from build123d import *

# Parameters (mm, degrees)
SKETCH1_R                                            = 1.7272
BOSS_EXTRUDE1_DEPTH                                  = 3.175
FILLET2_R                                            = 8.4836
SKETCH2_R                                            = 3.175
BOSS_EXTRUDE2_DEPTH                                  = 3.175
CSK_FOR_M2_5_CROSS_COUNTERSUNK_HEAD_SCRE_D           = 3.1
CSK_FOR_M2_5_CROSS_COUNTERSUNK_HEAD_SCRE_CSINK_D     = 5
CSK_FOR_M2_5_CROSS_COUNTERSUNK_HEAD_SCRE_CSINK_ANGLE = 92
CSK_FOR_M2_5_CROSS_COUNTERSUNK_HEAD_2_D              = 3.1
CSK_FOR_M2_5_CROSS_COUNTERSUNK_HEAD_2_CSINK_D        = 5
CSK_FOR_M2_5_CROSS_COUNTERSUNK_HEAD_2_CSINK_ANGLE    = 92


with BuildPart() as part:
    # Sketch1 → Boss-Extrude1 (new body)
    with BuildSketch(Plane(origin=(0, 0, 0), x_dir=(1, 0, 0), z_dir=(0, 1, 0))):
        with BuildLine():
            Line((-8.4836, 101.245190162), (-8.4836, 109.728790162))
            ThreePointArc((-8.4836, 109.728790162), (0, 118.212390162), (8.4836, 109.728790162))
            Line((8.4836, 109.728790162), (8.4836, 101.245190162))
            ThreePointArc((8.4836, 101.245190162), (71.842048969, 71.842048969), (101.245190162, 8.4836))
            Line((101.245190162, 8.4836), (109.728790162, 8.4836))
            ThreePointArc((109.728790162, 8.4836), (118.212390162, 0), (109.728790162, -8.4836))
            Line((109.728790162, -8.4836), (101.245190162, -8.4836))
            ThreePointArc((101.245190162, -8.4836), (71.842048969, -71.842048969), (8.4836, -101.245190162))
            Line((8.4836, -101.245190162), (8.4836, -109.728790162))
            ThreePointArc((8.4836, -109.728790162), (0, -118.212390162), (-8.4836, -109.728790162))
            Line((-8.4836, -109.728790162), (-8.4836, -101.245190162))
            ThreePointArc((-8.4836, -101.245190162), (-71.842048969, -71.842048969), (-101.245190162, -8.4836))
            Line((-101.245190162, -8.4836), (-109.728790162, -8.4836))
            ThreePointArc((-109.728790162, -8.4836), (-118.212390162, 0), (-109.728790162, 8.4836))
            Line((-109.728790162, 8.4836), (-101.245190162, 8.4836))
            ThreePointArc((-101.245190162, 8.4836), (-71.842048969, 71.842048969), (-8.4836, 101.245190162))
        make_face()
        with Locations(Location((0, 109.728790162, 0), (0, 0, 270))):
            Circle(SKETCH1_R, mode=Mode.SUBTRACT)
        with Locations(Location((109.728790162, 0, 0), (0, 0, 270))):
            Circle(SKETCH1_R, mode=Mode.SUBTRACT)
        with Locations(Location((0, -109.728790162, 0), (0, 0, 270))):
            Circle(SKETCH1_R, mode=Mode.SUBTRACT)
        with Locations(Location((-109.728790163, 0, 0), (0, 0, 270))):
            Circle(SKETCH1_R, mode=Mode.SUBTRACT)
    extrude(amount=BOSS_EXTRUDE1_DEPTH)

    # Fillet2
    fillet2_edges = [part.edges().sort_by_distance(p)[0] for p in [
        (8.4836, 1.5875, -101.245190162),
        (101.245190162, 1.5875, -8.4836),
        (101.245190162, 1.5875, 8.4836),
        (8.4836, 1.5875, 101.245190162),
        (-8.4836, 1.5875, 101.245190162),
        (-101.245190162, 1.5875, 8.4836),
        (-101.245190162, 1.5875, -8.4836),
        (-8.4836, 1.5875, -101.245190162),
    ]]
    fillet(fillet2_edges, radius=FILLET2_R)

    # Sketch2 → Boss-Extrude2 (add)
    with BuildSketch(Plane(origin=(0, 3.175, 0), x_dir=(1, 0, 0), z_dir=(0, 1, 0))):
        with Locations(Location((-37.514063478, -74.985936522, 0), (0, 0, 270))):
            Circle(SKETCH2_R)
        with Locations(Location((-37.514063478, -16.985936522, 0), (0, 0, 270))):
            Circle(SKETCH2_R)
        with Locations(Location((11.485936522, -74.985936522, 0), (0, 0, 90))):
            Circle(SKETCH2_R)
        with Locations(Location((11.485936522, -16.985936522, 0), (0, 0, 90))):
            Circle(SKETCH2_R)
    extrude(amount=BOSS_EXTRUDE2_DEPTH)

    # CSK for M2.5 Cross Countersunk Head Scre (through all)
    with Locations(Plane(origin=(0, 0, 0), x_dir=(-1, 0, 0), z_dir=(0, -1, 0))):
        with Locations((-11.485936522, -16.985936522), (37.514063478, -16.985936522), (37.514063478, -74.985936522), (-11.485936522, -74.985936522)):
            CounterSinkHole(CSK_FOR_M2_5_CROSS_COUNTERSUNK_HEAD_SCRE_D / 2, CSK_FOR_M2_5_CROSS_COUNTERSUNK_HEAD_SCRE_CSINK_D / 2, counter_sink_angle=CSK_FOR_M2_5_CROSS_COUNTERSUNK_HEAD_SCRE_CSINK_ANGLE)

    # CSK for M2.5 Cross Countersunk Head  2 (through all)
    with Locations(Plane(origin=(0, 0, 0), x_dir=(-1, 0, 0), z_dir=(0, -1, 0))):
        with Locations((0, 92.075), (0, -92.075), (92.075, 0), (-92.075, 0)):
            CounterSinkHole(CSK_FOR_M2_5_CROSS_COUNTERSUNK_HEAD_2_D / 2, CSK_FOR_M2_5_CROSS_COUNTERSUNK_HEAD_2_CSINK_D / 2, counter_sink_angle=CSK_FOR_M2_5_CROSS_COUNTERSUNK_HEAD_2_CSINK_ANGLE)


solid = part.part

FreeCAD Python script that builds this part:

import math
import FreeCAD as App
import Part
import Sketcher
from FreeCAD import Vector
Q = App.Units.Quantity


def edges_at(feature, points):
    """Names of the edges that pass closest to the given points."""
    edges = feature.Shape.Edges
    near = lambda p: min(range(len(edges)), key=lambda i: edges[i].distToShape(Part.Vertex(*p))[0])
    return sorted({f"Edge{near(p) + 1}" for p in points})

doc = App.newDocument("Part")
params = doc.addObject("Spreadsheet::Sheet", "Params")
for row, (alias, value) in enumerate([
    ("sketch1_radius", "4 in"),
    ("sketch1_diameter", "0.136 in"),
    ("sketch1_radius2", "0.334 in"),
    ("sketch1_width", "0.334 in"),
    ("pad1_length", "0.125 in"),
    ("fillet_radius", "0.334 in"),
    ("sketch2_diameter", "0.25 in"),
    ("pad2_length", "0.125 in"),
    ("hole_diameter", "3.1 mm"),
    ("hole_csink_diameter", "5 mm"),
    ("hole2_diameter", "3.1 mm"),
    ("hole2_csink_diameter", "5 mm"),
], start=1):
    params.set(f"A{row}", alias)
    params.set(f"B{row}", "=" + value)
    params.setAlias(f"B{row}", alias)

body = doc.addObject("PartDesign::Body", "Body")

# Sketch on XZ plane
sketch1 = doc.addObject("Sketcher::SketchObject", "Sketch")
body.addObject(sketch1)
sketch1.AttachmentSupport = (doc.XZ_Plane, [""])
sketch1.MapMode = "FlatFace"
sketch1.addGeometry(Part.LineSegment(Vector(-8.5, -109.7, 0), Vector(-8.5, -101.2, 0)), False)
sketch1.addGeometry(Part.ArcOfCircle(Part.Circle(Vector(0, 0, 0), Vector(0, 0, 1), 101.6), math.radians(-175), math.radians(-95)), False)
sketch1.addGeometry(Part.LineSegment(Vector(-101.2, -8.5, 0), Vector(-109.7, -8.5, 0)), False)
sketch1.addGeometry(Part.ArcOfCircle(Part.Circle(Vector(-109.7, 0, 0), Vector(0, 0, 1), 8.5), math.radians(90), math.radians(270)), False)
sketch1.addGeometry(Part.LineSegment(Vector(-109.7, 8.5, 0), Vector(-101.2, 8.5, 0)), False)
sketch1.addGeometry(Part.ArcOfCircle(Part.Circle(Vector(0, 0, 0), Vector(0, 0, 1), 101.6), math.radians(95), math.radians(175)), False)
sketch1.addGeometry(Part.LineSegment(Vector(-8.5, 101.2, 0), Vector(-8.5, 109.7, 0)), False)
sketch1.addGeometry(Part.ArcOfCircle(Part.Circle(Vector(0, 109.7, 0), Vector(0, 0, 1), 8.5), math.radians(0), math.radians(180)), False)
sketch1.addGeometry(Part.LineSegment(Vector(8.5, 109.7, 0), Vector(8.5, 101.2, 0)), False)
sketch1.addGeometry(Part.ArcOfCircle(Part.Circle(Vector(0, 0, 0), Vector(0, 0, 1), 101.6), math.radians(5), math.radians(85)), False)
sketch1.addGeometry(Part.LineSegment(Vector(101.2, 8.5, 0), Vector(109.7, 8.5, 0)), False)
sketch1.addGeometry(Part.ArcOfCircle(Part.Circle(Vector(109.7, 0, 0), Vector(0, 0, 1), 8.5), math.radians(-90), math.radians(90)), False)
sketch1.addGeometry(Part.LineSegment(Vector(109.7, -8.5, 0), Vector(101.2, -8.5, 0)), False)
sketch1.addGeometry(Part.ArcOfCircle(Part.Circle(Vector(0, 0, 0), Vector(0, 0, 1), 101.6), math.radians(-85), math.radians(-5)), False)
sketch1.addGeometry(Part.LineSegment(Vector(8.5, -101.2, 0), Vector(8.5, -109.7, 0)), False)
sketch1.addGeometry(Part.ArcOfCircle(Part.Circle(Vector(0, -109.7, 0), Vector(0, 0, 1), 8.5), math.radians(180), math.radians(360)), False)
sketch1.addGeometry(Part.Circle(Vector(0, 109.7, 0), Vector(0, 0, 1), 1.7), False)
sketch1.addGeometry(Part.Circle(Vector(109.7, 0, 0), Vector(0, 0, 1), 1.7), False)
sketch1.addGeometry(Part.Circle(Vector(0, -109.7, 0), Vector(0, 0, 1), 1.7), False)
sketch1.addGeometry(Part.Circle(Vector(-109.7, 0, 0), Vector(0, 0, 1), 1.7), False)
sketch1.addConstraint(Sketcher.Constraint("Coincident", 0, 2, 1, 2))
sketch1.addConstraint(Sketcher.Constraint("Coincident", 1, 1, 2, 1))
sketch1.addConstraint(Sketcher.Constraint("Tangent", 2, 2, 3, 2))
sketch1.addConstraint(Sketcher.Constraint("Tangent", 3, 1, 4, 1))
sketch1.addConstraint(Sketcher.Constraint("Coincident", 4, 2, 5, 2))
sketch1.addConstraint(Sketcher.Constraint("Coincident", 5, 1, 6, 1))
sketch1.addConstraint(Sketcher.Constraint("Tangent", 6, 2, 7, 2))
sketch1.addConstraint(Sketcher.Constraint("Tangent", 7, 1, 8, 1))
sketch1.addConstraint(Sketcher.Constraint("Coincident", 8, 2, 9, 2))
sketch1.addConstraint(Sketcher.Constraint("Coincident", 9, 1, 10, 1))
sketch1.addConstraint(Sketcher.Constraint("Tangent", 10, 2, 11, 2))
sketch1.addConstraint(Sketcher.Constraint("Tangent", 11, 1, 12, 1))
sketch1.addConstraint(Sketcher.Constraint("Coincident", 12, 2, 13, 2))
sketch1.addConstraint(Sketcher.Constraint("Coincident", 13, 1, 14, 1))
sketch1.addConstraint(Sketcher.Constraint("Tangent", 14, 2, 15, 2))
sketch1.addConstraint(Sketcher.Constraint("Tangent", 15, 1, 0, 1))
sketch1.addConstraint(Sketcher.Constraint("Vertical", 0))
sketch1.addConstraint(Sketcher.Constraint("Horizontal", 2))
sketch1.addConstraint(Sketcher.Constraint("Horizontal", 4))
sketch1.addConstraint(Sketcher.Constraint("Vertical", 6))
sketch1.addConstraint(Sketcher.Constraint("Vertical", 8))
sketch1.addConstraint(Sketcher.Constraint("Horizontal", 10))
sketch1.addConstraint(Sketcher.Constraint("Horizontal", 12))
sketch1.addConstraint(Sketcher.Constraint("Vertical", 14))
sketch1.addConstraint(Sketcher.Constraint("Coincident", 1, 3, -1, 1))
sketch1.addConstraint(Sketcher.Constraint("Coincident", 5, 3, -1, 1))
sketch1.addConstraint(Sketcher.Constraint("Coincident", 9, 3, -1, 1))
sketch1.addConstraint(Sketcher.Constraint("Coincident", 13, 3, -1, 1))
sketch1.addConstraint(Sketcher.Constraint("Coincident", 16, 3, 7, 3))
sketch1.addConstraint(Sketcher.Constraint("Coincident", 17, 3, 11, 3))
sketch1.addConstraint(Sketcher.Constraint("Coincident", 18, 3, 15, 3))
sketch1.addConstraint(Sketcher.Constraint("Coincident", 19, 3, 3, 3))
sketch1.addConstraint(Sketcher.Constraint("Equal", 1, 5))
sketch1.addConstraint(Sketcher.Constraint("Equal", 3, 7))
sketch1.addConstraint(Sketcher.Constraint("Equal", 5, 9))
sketch1.addConstraint(Sketcher.Constraint("Equal", 7, 11))
sketch1.addConstraint(Sketcher.Constraint("Equal", 9, 13))
sketch1.addConstraint(Sketcher.Constraint("Equal", 11, 15))
sketch1.addConstraint(Sketcher.Constraint("Equal", 16, 17))
sketch1.addConstraint(Sketcher.Constraint("Equal", 17, 18))
sketch1.addConstraint(Sketcher.Constraint("Equal", 18, 19))
sketch1.addConstraint(Sketcher.Constraint("Symmetric", 3, 3, 11, 3, -1, 1))
sketch1.addConstraint(Sketcher.Constraint("Symmetric", 7, 3, 15, 3, -1, 1))
sketch1.addConstraint(Sketcher.Constraint("PointOnObject", 3, 3, -1))
sketch1.addConstraint(Sketcher.Constraint("PointOnObject", 7, 3, -2))
sketch1.addConstraint(Sketcher.Constraint("Equal", 12, 0))
sketch1.addConstraint(Sketcher.Constraint("Radius", 1, Q("4 in")))
sketch1.addConstraint(Sketcher.Constraint("Diameter", 16, Q("0.136 in")))
sketch1.addConstraint(Sketcher.Constraint("Radius", 3, Q("0.334 in")))
sketch1.addConstraint(Sketcher.Constraint("DistanceX", 2, 2, 2, 1, Q("0.334 in")))
sketch1.setExpression("Constraints[46]", "Params.sketch1_radius")
sketch1.setExpression("Constraints[47]", "Params.sketch1_diameter")
sketch1.setExpression("Constraints[48]", "Params.sketch1_radius2")
sketch1.setExpression("Constraints[49]", "Params.sketch1_width")
pad1 = doc.addObject("PartDesign::Pad", "Pad")
body.addObject(pad1)
pad1.Profile = sketch1
pad1.setExpression("Length", "Params.pad1_length")
pad1.Reversed = True
doc.recompute()

fillet = doc.addObject("PartDesign::Fillet", "Fillet")
body.addObject(fillet)
fillet.Base = (pad1, edges_at(pad1, [
    (8.484, 1.587, -101.245),
    (101.245, 1.587, -8.484),
    (101.245, 1.587, 8.484),
    (8.484, 1.587, 101.245),
    (-8.484, 1.587, 101.245),
    (-101.245, 1.587, 8.484),
    (-101.245, 1.587, -8.484),
    (-8.484, 1.587, -101.245),
]))
fillet.setExpression("Radius", "Params.fillet_radius")

# Sketch on XZ plane
sketch2 = doc.addObject("Sketcher::SketchObject", "Sketch001")
body.addObject(sketch2)
sketch2.AttachmentSupport = (doc.XZ_Plane, [""])
sketch2.MapMode = "FlatFace"
sketch2.AttachmentOffset = App.Placement(Vector(0, 0, -0.125 * 25.4), App.Rotation())
sketch2.addGeometry(Part.Circle(Vector(-37.5, 75, 0), Vector(0, 0, 1), 3.2), False)
sketch2.addGeometry(Part.Circle(Vector(-37.5, 17, 0), Vector(0, 0, 1), 3.2), False)
sketch2.addGeometry(Part.Circle(Vector(11.5, 75, 0), Vector(0, 0, 1), 3.2), False)
sketch2.addGeometry(Part.Circle(Vector(11.5, 17, 0), Vector(0, 0, 1), 3.2), False)
sketch2.addConstraint(Sketcher.Constraint("Equal", 0, 1))
sketch2.addConstraint(Sketcher.Constraint("Equal", 1, 2))
sketch2.addConstraint(Sketcher.Constraint("Equal", 2, 3))
sketch2.addConstraint(Sketcher.Constraint("Horizontal", 0, 3, 2, 3))
sketch2.addConstraint(Sketcher.Constraint("Horizontal", 1, 3, 3, 3))
sketch2.addConstraint(Sketcher.Constraint("Vertical", 0, 3, 1, 3))
sketch2.addConstraint(Sketcher.Constraint("Vertical", 2, 3, 3, 3))
sketch2.addConstraint(Sketcher.Constraint("Diameter", 0, Q("0.25 in")))
sketch2.addConstraint(Sketcher.Constraint("DistanceY", 1, 3, 0, 3, 58.0))
sketch2.addConstraint(Sketcher.Constraint("DistanceX", 0, 3, 2, 3, 49.0))
sketch2.addConstraint(Sketcher.Constraint("DistanceX", 0, 3, -1, 1, 37.514063))
sketch2.addConstraint(Sketcher.Constraint("DistanceY", -1, 1, 0, 3, 74.985937))
sketch2.setExpression("Constraints[7]", "Params.sketch2_diameter")
pad2 = doc.addObject("PartDesign::Pad", "Pad001")
body.addObject(pad2)
pad2.Profile = sketch2
pad2.setExpression("Length", "Params.pad2_length")
pad2.Reversed = True

# Sketch on XZ plane
sketch3 = doc.addObject("Sketcher::SketchObject", "Sketch002")
body.addObject(sketch3)
sketch3.AttachmentSupport = (doc.XZ_Plane, [""])
sketch3.MapMode = "FlatFace"
sketch3.addGeometry(Part.Circle(Vector(11.5, 17, 0), Vector(0, 0, 1), 1.6), False)
sketch3.addGeometry(Part.Circle(Vector(-37.5, 17, 0), Vector(0, 0, 1), 1.6), False)
sketch3.addGeometry(Part.Circle(Vector(-37.5, 75, 0), Vector(0, 0, 1), 1.6), False)
sketch3.addGeometry(Part.Circle(Vector(11.5, 75, 0), Vector(0, 0, 1), 1.6), False)
sketch3.addConstraint(Sketcher.Constraint("Equal", 0, 1))
sketch3.addConstraint(Sketcher.Constraint("Equal", 1, 2))
sketch3.addConstraint(Sketcher.Constraint("Equal", 2, 3))
sketch3.addConstraint(Sketcher.Constraint("Horizontal", 0, 3, 1, 3))
sketch3.addConstraint(Sketcher.Constraint("Horizontal", 2, 3, 3, 3))
sketch3.addConstraint(Sketcher.Constraint("Vertical", 1, 3, 2, 3))
sketch3.addConstraint(Sketcher.Constraint("Vertical", 0, 3, 3, 3))
sketch3.addConstraint(Sketcher.Constraint("Diameter", 0, 3.1))
sketch3.addConstraint(Sketcher.Constraint("DistanceX", 1, 3, 0, 3, 49.0))
sketch3.addConstraint(Sketcher.Constraint("DistanceY", 1, 3, 2, 3, 58.0))
sketch3.addConstraint(Sketcher.Constraint("DistanceX", -1, 1, 0, 3, 11.485937))
sketch3.addConstraint(Sketcher.Constraint("DistanceY", -1, 1, 0, 3, 16.985937))
doc.recompute()
hole = doc.addObject("PartDesign::Hole", "Hole")
body.addObject(hole)
hole.Profile = sketch3
hole.ThreadType = "None"
hole.setExpression("Diameter", "Params.hole_diameter")
hole.DepthType = "ThroughAll"
hole.HoleCutType = "Countersink"
hole.setExpression("HoleCutDiameter", "Params.hole_csink_diameter")
hole.HoleCutCountersinkAngle = 92

# Sketch on XZ plane
sketch4 = doc.addObject("Sketcher::SketchObject", "Sketch003")
body.addObject(sketch4)
sketch4.AttachmentSupport = (doc.XZ_Plane, [""])
sketch4.MapMode = "FlatFace"
sketch4.addGeometry(Part.Circle(Vector(0, -92.1, 0), Vector(0, 0, 1), 1.6), False)
sketch4.addGeometry(Part.Circle(Vector(0, 92.1, 0), Vector(0, 0, 1), 1.6), False)
sketch4.addGeometry(Part.Circle(Vector(-92.1, 0, 0), Vector(0, 0, 1), 1.6), False)
sketch4.addGeometry(Part.Circle(Vector(92.1, 0, 0), Vector(0, 0, 1), 1.6), False)
sketch4.addConstraint(Sketcher.Constraint("Equal", 0, 1))
sketch4.addConstraint(Sketcher.Constraint("Equal", 1, 2))
sketch4.addConstraint(Sketcher.Constraint("Equal", 2, 3))
sketch4.addConstraint(Sketcher.Constraint("Symmetric", 0, 3, 1, 3, -1, 1))
sketch4.addConstraint(Sketcher.Constraint("Symmetric", 2, 3, 3, 3, -1, 1))
sketch4.addConstraint(Sketcher.Constraint("PointOnObject", 0, 3, -2))
sketch4.addConstraint(Sketcher.Constraint("PointOnObject", 2, 3, -1))
sketch4.addConstraint(Sketcher.Constraint("Diameter", 0, 3.1))
sketch4.addConstraint(Sketcher.Constraint("DistanceY", 0, 3, 1, 3, Q("7.25 in")))
sketch4.addConstraint(Sketcher.Constraint("DistanceX", 2, 3, 3, 3, Q("7.25 in")))
doc.recompute()
hole2 = doc.addObject("PartDesign::Hole", "Hole001")
body.addObject(hole2)
hole2.Profile = sketch4
hole2.ThreadType = "None"
hole2.setExpression("Diameter", "Params.hole2_diameter")
hole2.DepthType = "ThroughAll"
hole2.HoleCutType = "Countersink"
hole2.setExpression("HoleCutDiameter", "Params.hole2_csink_diameter")
hole2.HoleCutCountersinkAngle = 92

doc.recompute()
